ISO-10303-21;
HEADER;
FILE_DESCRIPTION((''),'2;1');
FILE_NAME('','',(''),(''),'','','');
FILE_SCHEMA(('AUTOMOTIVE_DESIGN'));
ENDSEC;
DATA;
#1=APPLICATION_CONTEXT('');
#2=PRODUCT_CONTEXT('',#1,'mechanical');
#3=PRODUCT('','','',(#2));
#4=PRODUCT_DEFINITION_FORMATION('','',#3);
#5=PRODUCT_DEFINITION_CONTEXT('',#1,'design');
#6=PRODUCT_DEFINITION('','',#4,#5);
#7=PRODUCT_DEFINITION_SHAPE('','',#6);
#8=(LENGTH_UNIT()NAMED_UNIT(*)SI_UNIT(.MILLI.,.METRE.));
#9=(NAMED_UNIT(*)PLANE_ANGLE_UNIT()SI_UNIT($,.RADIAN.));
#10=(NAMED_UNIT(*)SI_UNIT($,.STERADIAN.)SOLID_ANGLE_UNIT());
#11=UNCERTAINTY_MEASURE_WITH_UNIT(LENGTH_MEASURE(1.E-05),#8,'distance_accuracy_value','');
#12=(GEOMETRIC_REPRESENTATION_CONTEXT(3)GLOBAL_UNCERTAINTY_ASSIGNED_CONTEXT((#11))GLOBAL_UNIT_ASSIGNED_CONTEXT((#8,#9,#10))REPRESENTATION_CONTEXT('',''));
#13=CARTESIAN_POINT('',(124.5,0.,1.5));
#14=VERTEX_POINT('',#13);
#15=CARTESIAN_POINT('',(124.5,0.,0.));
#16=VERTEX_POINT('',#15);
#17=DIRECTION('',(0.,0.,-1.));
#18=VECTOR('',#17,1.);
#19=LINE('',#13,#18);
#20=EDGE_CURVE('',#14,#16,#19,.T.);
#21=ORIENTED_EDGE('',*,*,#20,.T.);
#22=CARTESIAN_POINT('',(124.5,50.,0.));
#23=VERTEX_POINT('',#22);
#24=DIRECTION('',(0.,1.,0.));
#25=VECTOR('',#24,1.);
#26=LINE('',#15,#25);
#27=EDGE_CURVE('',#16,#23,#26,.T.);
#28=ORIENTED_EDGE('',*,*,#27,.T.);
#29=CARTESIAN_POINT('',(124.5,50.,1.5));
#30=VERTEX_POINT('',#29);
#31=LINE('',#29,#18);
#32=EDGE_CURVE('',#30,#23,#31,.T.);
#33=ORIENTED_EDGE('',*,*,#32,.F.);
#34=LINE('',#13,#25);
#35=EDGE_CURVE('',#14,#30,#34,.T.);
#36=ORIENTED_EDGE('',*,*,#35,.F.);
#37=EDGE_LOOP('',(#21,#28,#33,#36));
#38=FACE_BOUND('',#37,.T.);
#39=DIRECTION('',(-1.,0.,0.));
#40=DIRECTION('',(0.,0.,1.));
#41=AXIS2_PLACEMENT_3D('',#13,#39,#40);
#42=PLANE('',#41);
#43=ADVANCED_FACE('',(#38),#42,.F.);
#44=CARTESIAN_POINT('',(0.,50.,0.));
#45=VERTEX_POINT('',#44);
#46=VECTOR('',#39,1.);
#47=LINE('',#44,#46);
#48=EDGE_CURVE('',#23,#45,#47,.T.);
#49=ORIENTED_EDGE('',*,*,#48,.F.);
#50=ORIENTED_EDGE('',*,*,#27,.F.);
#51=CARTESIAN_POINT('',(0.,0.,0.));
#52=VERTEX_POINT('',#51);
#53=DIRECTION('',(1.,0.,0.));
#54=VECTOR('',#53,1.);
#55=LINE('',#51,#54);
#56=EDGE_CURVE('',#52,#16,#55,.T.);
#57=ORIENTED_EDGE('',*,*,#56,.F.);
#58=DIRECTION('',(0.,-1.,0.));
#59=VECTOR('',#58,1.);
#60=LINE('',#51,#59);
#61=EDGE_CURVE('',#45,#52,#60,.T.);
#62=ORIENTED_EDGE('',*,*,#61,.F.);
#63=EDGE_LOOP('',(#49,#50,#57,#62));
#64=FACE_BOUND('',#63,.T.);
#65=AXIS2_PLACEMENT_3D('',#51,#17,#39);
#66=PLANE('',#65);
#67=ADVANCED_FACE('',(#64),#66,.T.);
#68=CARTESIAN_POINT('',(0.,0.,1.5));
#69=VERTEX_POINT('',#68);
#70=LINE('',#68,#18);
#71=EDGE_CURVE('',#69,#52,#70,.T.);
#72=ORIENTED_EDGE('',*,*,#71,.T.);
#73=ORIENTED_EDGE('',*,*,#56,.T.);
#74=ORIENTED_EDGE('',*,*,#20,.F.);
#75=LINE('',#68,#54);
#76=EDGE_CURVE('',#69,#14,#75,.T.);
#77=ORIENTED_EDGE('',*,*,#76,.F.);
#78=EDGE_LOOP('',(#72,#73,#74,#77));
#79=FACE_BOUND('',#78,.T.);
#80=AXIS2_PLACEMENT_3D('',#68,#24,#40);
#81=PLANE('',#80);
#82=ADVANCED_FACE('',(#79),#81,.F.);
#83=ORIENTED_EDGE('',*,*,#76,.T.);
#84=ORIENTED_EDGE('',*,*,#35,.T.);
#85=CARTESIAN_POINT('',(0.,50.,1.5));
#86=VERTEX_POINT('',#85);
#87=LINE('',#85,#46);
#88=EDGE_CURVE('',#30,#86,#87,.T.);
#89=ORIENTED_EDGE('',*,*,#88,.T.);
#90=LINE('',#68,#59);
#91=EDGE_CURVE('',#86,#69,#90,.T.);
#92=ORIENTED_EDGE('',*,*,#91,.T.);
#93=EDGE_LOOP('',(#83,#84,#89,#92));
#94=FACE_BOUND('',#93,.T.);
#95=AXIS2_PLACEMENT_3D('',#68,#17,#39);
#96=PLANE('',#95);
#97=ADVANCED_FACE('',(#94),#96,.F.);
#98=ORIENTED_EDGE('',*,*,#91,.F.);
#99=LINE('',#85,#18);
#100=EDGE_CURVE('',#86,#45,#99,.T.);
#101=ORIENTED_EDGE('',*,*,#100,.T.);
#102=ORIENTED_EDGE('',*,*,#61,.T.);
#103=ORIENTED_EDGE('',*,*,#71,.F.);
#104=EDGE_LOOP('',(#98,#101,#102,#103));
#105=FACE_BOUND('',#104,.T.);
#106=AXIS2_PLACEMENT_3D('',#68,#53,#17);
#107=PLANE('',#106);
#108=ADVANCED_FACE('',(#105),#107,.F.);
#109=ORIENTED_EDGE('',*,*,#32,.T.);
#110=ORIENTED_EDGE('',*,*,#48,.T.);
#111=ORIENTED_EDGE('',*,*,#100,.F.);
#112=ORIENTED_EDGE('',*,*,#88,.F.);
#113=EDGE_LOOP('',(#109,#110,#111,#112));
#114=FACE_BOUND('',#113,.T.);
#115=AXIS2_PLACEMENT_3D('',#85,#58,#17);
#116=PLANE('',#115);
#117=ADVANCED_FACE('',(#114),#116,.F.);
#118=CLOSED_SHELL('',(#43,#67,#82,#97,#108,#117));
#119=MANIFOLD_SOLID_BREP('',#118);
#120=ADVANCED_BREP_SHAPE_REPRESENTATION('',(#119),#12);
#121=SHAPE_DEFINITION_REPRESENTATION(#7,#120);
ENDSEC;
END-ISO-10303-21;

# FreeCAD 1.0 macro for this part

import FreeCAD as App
import Part
import Sketcher
Q = App.Units.Quantity

doc = App.newDocument("Part")
body = doc.addObject("PartDesign::Body", "Body")

# Sketch on XY plane
sketch1 = body.newObject("Sketcher::SketchObject", "Sketch")
sketch1.AttachmentSupport = (doc.getObject("XY_Plane"), [""])
sketch1.MapMode = "FlatFace"
sketch1.addGeometry(Part.LineSegment(App.Vector(0, 50, 0), App.Vector(0, 0, 0)), False)
sketch1.addGeometry(Part.LineSegment(App.Vector(0, 0, 0), App.Vector(124, 0, 0)), False)
sketch1.addGeometry(Part.LineSegment(App.Vector(124, 0, 0), App.Vector(124, 50, 0)), False)
sketch1.addGeometry(Part.LineSegment(App.Vector(124, 50, 0), App.Vector(0, 50, 0)), False)
sketch1.addConstraint(Sketcher.Constraint("Coincident", 0, 2, 1, 1))
sketch1.addConstraint(Sketcher.Constraint("Coincident", 1, 2, 2, 1))
sketch1.addConstraint(Sketcher.Constraint("Coincident", 2, 2, 3, 1))
sketch1.addConstraint(Sketcher.Constraint("Coincident", 3, 2, 0, 1))
sketch1.addConstraint(Sketcher.Constraint("Vertical", 0))
sketch1.addConstraint(Sketcher.Constraint("Horizontal", 1))
sketch1.addConstraint(Sketcher.Constraint("Vertical", 2))
sketch1.addConstraint(Sketcher.Constraint("Horizontal", 3))
sketch1.addConstraint(Sketcher.Constraint("Coincident", 0, 2, -1, 1))
sketch1.addConstraint(Sketcher.Constraint("DistanceY", 0, 2, 0, 1, Q("50 mm")))
sketch1.addConstraint(Sketcher.Constraint("DistanceX", 1, 1, 1, 2, Q("124.5 mm")))
pad1 = body.newObject("PartDesign::Pad", "Pad")
pad1.Profile = sketch1
pad1.Length = 1.5

doc.recompute()
